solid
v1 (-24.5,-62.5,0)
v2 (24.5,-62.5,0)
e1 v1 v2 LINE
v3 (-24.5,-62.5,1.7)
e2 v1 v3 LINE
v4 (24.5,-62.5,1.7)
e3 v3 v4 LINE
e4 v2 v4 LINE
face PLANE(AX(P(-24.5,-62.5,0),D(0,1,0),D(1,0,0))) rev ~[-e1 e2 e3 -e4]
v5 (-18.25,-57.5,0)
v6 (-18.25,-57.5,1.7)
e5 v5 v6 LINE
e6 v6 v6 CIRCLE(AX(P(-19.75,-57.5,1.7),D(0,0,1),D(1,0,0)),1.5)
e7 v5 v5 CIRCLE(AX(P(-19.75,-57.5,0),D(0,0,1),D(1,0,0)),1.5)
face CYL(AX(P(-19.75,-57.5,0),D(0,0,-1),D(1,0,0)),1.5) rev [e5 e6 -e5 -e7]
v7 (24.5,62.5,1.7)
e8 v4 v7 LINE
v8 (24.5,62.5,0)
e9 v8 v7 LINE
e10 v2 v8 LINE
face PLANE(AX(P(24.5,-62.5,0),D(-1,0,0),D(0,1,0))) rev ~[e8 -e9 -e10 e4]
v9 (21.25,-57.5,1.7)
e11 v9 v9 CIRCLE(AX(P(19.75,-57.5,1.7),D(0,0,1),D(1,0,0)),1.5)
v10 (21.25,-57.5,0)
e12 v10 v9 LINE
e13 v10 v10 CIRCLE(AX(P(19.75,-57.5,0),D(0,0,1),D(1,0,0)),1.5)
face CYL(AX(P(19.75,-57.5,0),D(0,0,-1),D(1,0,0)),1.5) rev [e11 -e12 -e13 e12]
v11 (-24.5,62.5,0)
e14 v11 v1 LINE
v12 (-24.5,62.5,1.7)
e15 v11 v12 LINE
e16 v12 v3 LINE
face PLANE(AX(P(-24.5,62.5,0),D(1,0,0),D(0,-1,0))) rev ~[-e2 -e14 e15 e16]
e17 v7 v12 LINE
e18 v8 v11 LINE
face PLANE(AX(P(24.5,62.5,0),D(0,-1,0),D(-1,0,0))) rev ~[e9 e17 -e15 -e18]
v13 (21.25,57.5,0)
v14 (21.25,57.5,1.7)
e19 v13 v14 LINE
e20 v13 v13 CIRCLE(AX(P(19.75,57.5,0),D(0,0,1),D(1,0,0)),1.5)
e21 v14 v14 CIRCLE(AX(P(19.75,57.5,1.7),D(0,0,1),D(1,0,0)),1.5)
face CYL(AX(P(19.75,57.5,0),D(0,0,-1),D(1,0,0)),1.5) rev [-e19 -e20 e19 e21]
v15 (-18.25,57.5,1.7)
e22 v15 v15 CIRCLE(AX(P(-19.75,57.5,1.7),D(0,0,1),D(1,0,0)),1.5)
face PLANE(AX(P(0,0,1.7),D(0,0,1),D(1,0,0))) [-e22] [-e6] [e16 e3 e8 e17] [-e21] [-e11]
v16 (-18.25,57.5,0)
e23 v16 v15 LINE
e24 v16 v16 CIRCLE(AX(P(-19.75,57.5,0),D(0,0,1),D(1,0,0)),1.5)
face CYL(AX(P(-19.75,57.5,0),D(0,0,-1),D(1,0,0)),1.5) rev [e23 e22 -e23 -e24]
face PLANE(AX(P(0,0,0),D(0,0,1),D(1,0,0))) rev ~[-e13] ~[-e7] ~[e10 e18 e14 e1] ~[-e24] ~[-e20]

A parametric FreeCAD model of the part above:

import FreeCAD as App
import Part
import Sketcher

V = App.Vector


def add_polygon(sketch, points):
    """Adds a closed chain of lines whose ends are joined by coincident constraints."""
    first, n = sketch.GeometryCount, len(points)
    for a, b in zip(points, points[1:] + points[:1]):
        sketch.addGeometry(Part.LineSegment(App.Vector(*a, 0), App.Vector(*b, 0)), False)
    for i in range(n):
        sketch.addConstraint(Sketcher.Constraint("Coincident", first + i, 2, first + (i + 1) % n, 1))

doc = App.newDocument("Part")
body = doc.addObject("PartDesign::Body", "Body")

# Sketch on XY plane
sketch1 = body.newObject("Sketcher::SketchObject", "Sketch")
sketch1.AttachmentSupport = (doc.getObject("XY_Plane"), [""])
sketch1.MapMode = "FlatFace"
add_polygon(sketch1, [(-24.5, 62.5), (-24.5, -62.5), (24.5, -62.5), (24.5, 62.5)])  # lines 0-3
sketch1.addGeometry(Part.Circle(V(-19.8, -57.5, 0), V(0, 0, 1), 1.5), False)  # 4
sketch1.addGeometry(Part.Circle(V(19.8, -57.5, 0), V(0, 0, 1), 1.5), False)  # 5
sketch1.addGeometry(Part.Circle(V(-19.8, 57.5, 0), V(0, 0, 1), 1.5), False)  # 6
sketch1.addGeometry(Part.Circle(V(19.8, 57.5, 0), V(0, 0, 1), 1.5), False)  # 7
sketch1.addConstraint([
    Sketcher.Constraint("Vertical", 0),
    Sketcher.Constraint("Horizontal", 1),
    Sketcher.Constraint("Vertical", 2),
    Sketcher.Constraint("Horizontal", 3),
    Sketcher.Constraint("Equal", 4, 5),
    Sketcher.Constraint("Equal", 5, 6),
    Sketcher.Constraint("Equal", 6, 7),
    Sketcher.Constraint("Symmetric", 5, 3, 6, 3, -1, 1),
    Sketcher.Constraint("Symmetric", 4, 3, 7, 3, -1, 1),
    Sketcher.Constraint("Symmetric", 0, 2, 2, 2, -1, 1),
    Sketcher.Constraint("Symmetric", 4, 3, 5, 3, -2),
    Sketcher.Constraint("Diameter", 4, 3.0),
    Sketcher.Constraint("DistanceX", 1, 1, 1, 2, 49.0),
    Sketcher.Constraint("DistanceY", 0, 2, 0, 1, 125.0),
    Sketcher.Constraint("DistanceY", 4, 3, 6, 3, 115.0),
    Sketcher.Constraint("DistanceX", 4, 3, 5, 3, 39.5),
])
pad1 = body.newObject("PartDesign::Pad", "Pad")
pad1.Profile = sketch1
pad1.Length = 1.7

doc.recompute()
